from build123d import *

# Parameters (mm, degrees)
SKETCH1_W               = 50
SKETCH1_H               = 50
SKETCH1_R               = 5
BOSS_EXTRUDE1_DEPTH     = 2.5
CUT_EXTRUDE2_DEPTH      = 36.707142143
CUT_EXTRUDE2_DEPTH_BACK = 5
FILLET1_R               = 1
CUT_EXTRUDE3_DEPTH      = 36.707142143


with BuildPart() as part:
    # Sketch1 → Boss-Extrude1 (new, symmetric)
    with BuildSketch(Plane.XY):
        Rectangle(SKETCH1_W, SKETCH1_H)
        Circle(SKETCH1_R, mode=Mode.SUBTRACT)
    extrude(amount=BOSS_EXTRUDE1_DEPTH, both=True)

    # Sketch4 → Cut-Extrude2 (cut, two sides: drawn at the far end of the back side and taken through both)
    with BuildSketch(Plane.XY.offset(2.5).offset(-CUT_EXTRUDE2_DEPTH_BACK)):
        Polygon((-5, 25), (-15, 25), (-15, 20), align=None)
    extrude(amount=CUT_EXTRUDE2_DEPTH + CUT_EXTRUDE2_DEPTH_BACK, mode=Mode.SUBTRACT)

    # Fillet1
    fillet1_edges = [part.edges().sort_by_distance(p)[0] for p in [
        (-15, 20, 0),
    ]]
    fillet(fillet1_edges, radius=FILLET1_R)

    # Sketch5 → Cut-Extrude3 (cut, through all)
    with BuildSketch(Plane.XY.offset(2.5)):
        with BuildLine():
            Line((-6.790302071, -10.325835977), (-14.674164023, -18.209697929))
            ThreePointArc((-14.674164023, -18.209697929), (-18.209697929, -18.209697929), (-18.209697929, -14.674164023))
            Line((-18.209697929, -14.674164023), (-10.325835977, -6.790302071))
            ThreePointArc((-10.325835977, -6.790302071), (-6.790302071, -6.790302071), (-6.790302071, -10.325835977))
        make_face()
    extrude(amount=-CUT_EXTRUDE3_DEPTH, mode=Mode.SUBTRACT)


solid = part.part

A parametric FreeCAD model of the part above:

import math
import FreeCAD as App
import Part
import Sketcher
Q = App.Units.Quantity


def edges_at(feature, points):
    """Names of the edges that pass closest to the given points."""
    edges = feature.Shape.Edges
    near = lambda p: min(range(len(edges)), key=lambda i: edges[i].distToShape(Part.Vertex(*p))[0])
    return sorted({f"Edge{near(p) + 1}" for p in points})

doc = App.newDocument("Part")
params = doc.addObject("Spreadsheet::Sheet", "Params")
for row, (alias, value) in enumerate([
    ("sketch1_diameter", "10 mm"),
    ("sketch1_width", "50 mm"),
    ("pad1_length", "5 mm"),
    ("sketch2_width", "10 mm"),
    ("sketch2_height", "5 mm"),
    ("fillet_radius", "1 mm"),
    ("sketch3_radius", "2.5 mm"),
], start=1):
    params.set(f"A{row}", alias)
    params.set(f"B{row}", "=" + value)
    params.setAlias(f"B{row}", alias)

body = doc.addObject("PartDesign::Body", "Body")

# Sketch on XY plane
sketch1 = body.newObject("Sketcher::SketchObject", "Sketch")
sketch1.AttachmentSupport = (doc.getObject("XY_Plane"), [""])
sketch1.MapMode = "FlatFace"
sketch1.addGeometry(Part.LineSegment(App.Vector(-25, 25, 0), App.Vector(-25, -25, 0)), False)
sketch1.addGeometry(Part.LineSegment(App.Vector(-25, -25, 0), App.Vector(25, -25, 0)), False)
sketch1.addGeometry(Part.LineSegment(App.Vector(25, -25, 0), App.Vector(25, 25, 0)), False)
sketch1.addGeometry(Part.LineSegment(App.Vector(25, 25, 0), App.Vector(-25, 25, 0)), False)
sketch1.addGeometry(Part.Circle(App.Vector(0, 0, 0), App.Vector(0, 0, 1), 5), False)
sketch1.addConstraint(Sketcher.Constraint("Coincident", 0, 2, 1, 1))
sketch1.addConstraint(Sketcher.Constraint("Coincident", 1, 2, 2, 1))
sketch1.addConstraint(Sketcher.Constraint("Coincident", 2, 2, 3, 1))
sketch1.addConstraint(Sketcher.Constraint("Coincident", 3, 2, 0, 1))
sketch1.addConstraint(Sketcher.Constraint("Vertical", 0))
sketch1.addConstraint(Sketcher.Constraint("Horizontal", 1))
sketch1.addConstraint(Sketcher.Constraint("Vertical", 2))
sketch1.addConstraint(Sketcher.Constraint("Horizontal", 3))
sketch1.addConstraint(Sketcher.Constraint("Coincident", 4, 3, -1, 1))
sketch1.addConstraint(Sketcher.Constraint("Symmetric", 0, 2, 2, 2, -1, 1))
sketch1.addConstraint(Sketcher.Constraint("Equal", 3, 0))
sketch1.addConstraint(Sketcher.Constraint("Diameter", 4, Q("10 mm")))
sketch1.addConstraint(Sketcher.Constraint("DistanceX", 1, 1, 1, 2, Q("50 mm")))
sketch1.setExpression("Constraints[11]", "Params.sketch1_diameter")
sketch1.setExpression("Constraints[12]", "Params.sketch1_width")
pad1 = body.newObject("PartDesign::Pad", "Pad")
pad1.Profile = sketch1
pad1.setExpression("Length", "Params.pad1_length")
pad1.Midplane = True

# Sketch on XY plane
sketch2 = body.newObject("Sketcher::SketchObject", "Sketch001")
sketch2.AttachmentSupport = (doc.getObject("XY_Plane"), [""])
sketch2.MapMode = "FlatFace"
sketch2.AttachmentOffset = App.Placement(App.Vector(0, 0, 2.5), App.Rotation())
sketch2.addGeometry(Part.LineSegment(App.Vector(-5, 25, 0), App.Vector(-15, 25, 0)), False)
sketch2.addGeometry(Part.LineSegment(App.Vector(-15, 25, 0), App.Vector(-15, 20, 0)), False)
sketch2.addGeometry(Part.LineSegment(App.Vector(-15, 20, 0), App.Vector(-5, 25, 0)), False)
sketch2.addConstraint(Sketcher.Constraint("Coincident", 0, 2, 1, 1))
sketch2.addConstraint(Sketcher.Constraint("Coincident", 1, 2, 2, 1))
sketch2.addConstraint(Sketcher.Constraint("Coincident", 2, 2, 0, 1))
sketch2.addConstraint(Sketcher.Constraint("Horizontal", 0))
sketch2.addConstraint(Sketcher.Constraint("Vertical", 1))
sketch2.addConstraint(Sketcher.Constraint("DistanceX", 0, 2, 0, 1, Q("10 mm")))
sketch2.addConstraint(Sketcher.Constraint("DistanceY", 1, 2, 1, 1, Q("5 mm")))
sketch2.addConstraint(Sketcher.Constraint("DistanceX", 0, 2, -1, 1, Q("15 mm")))
sketch2.addConstraint(Sketcher.Constraint("DistanceY", -1, 1, 0, 2, Q("25 mm")))
sketch2.setExpression("Constraints[5]", "Params.sketch2_width")
sketch2.setExpression("Constraints[6]", "Params.sketch2_height")
pocket1 = body.newObject("PartDesign::Pocket", "Pocket")
pocket1.Profile = sketch2
pocket1.Type = "ThroughAll"
pocket1.Midplane = True
doc.recompute()

fillet = body.newObject("PartDesign::Fillet", "Fillet")
fillet.Base = (pocket1, edges_at(pocket1, [(-15, 20, 0)]))
fillet.setExpression("Radius", "Params.fillet_radius")

# Sketch on XY plane
sketch3 = body.newObject("Sketcher::SketchObject", "Sketch002")
sketch3.AttachmentSupport = (doc.getObject("XY_Plane"), [""])
sketch3.MapMode = "FlatFace"
sketch3.AttachmentOffset = App.Placement(App.Vector(0, 0, 2.5), App.Rotation())
sketch3.addGeometry(Part.LineSegment(App.Vector(-14.674164, -18.209698, 0), App.Vector(-6.790302, -10.325836, 0)), False)
sketch3.addGeometry(Part.ArcOfCircle(Part.Circle(App.Vector(-8.558069, -8.558069, 0), App.Vector(0, 0, 1), 2.5), math.radians(-45), math.radians(135)), False)
sketch3.addGeometry(Part.LineSegment(App.Vector(-10.325836, -6.790302, 0), App.Vector(-18.209698, -14.674164, 0)), False)
sketch3.addGeometry(Part.ArcOfCircle(Part.Circle(App.Vector(-16.441931, -16.441931, 0), App.Vector(0, 0, 1), 2.5), math.radians(135), math.radians(315)), False)
sketch3.addConstraint(Sketcher.Constraint("Tangent", 0, 2, 1, 1))
sketch3.addConstraint(Sketcher.Constraint("Tangent", 1, 2, 2, 1))
sketch3.addConstraint(Sketcher.Constraint("Tangent", 2, 2, 3, 1))
sketch3.addConstraint(Sketcher.Constraint("Tangent", 3, 2, 0, 1))
sketch3.addConstraint(Sketcher.Constraint("Equal", 1, 3))
sketch3.addConstraint(Sketcher.Constraint("Radius", 1, Q("2.5 mm")))
sketch3.addConstraint(Sketcher.Constraint("Angle", 0, Q("45 deg")))
sketch3.addConstraint(Sketcher.Constraint("DistanceX", 1, 3, -1, 1, Q("8.558069 mm")))
sketch3.addConstraint(Sketcher.Constraint("DistanceY", 1, 3, -1, 1, Q("8.558069 mm")))
sketch3.addConstraint(Sketcher.Constraint("DistanceX", 3, 3, -1, 1, Q("16.441931 mm")))
sketch3.setExpression("Constraints[5]", "Params.sketch3_radius")
pocket2 = body.newObject("PartDesign::Pocket", "Pocket001")
pocket2.Profile = sketch3
pocket2.Type = "ThroughAll"

doc.recompute()
